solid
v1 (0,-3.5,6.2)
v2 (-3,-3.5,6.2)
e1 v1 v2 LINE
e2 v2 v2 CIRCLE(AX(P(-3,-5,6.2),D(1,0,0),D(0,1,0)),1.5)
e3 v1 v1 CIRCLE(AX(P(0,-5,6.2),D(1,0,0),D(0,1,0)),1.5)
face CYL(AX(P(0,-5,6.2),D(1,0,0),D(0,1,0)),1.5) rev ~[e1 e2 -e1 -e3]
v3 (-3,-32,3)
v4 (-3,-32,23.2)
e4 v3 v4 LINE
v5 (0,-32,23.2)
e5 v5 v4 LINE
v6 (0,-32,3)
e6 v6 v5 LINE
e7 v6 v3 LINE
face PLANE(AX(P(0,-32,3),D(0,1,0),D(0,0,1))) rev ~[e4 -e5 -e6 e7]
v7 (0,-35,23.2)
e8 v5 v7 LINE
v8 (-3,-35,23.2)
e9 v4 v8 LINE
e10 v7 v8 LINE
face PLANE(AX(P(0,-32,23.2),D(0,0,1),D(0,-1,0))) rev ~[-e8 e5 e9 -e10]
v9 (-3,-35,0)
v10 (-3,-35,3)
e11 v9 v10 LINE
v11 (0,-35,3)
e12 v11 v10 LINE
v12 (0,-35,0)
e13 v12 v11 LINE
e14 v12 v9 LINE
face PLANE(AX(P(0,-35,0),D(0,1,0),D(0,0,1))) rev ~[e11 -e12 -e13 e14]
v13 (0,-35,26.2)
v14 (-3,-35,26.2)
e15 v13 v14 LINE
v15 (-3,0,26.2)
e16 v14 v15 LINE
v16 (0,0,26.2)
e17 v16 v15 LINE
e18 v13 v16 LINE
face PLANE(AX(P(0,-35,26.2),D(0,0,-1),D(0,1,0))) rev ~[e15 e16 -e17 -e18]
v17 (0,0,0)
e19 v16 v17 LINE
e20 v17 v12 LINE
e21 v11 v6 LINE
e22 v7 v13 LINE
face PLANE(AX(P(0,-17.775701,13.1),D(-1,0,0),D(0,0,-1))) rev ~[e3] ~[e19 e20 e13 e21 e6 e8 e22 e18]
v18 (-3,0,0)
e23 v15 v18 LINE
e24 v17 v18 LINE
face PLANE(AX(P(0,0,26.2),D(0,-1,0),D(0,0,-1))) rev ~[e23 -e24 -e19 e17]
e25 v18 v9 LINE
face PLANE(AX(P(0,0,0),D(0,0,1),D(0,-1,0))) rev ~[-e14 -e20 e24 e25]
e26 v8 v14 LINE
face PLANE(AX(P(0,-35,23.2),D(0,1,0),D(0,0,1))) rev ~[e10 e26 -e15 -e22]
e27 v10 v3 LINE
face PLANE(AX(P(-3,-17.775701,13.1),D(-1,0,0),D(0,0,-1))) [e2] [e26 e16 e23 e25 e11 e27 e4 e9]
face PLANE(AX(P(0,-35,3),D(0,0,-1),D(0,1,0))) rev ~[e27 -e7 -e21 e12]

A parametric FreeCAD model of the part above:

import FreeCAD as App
import Part
import Sketcher
Q = App.Units.Quantity


def add_polygon(sketch, points):
    """Adds a closed chain of lines whose ends are joined by coincident constraints."""
    first, n = sketch.GeometryCount, len(points)
    for a, b in zip(points, points[1:] + points[:1]):
        sketch.addGeometry(Part.LineSegment(App.Vector(*a, 0), App.Vector(*b, 0)), False)
    for i in range(n):
        sketch.addConstraint(Sketcher.Constraint("Coincident", first + i, 2, first + (i + 1) % n, 1))

doc = App.newDocument("Part")
body = doc.addObject("PartDesign::Body", "Body")

# Sketch on YZ plane
sketch1 = doc.addObject("Sketcher::SketchObject", "Sketch")
body.addObject(sketch1)
sketch1.AttachmentSupport = (doc.YZ_Plane, [""])
sketch1.MapMode = "FlatFace"
add_polygon(sketch1, [(0, 0), (0, 26.2), (-35, 26.2), (-35, 23.2), (-32, 23.2), (-32, 3), (-35, 3), (-35, 0)])  # lines 0-7
sketch1.addGeometry(Part.Circle(App.Vector(-5, 6.2, 0), App.Vector(0, 0, 1), 1.5), False)  # 8
sketch1.addConstraint(Sketcher.Constraint("Vertical", 0))
sketch1.addConstraint(Sketcher.Constraint("Horizontal", 1))
sketch1.addConstraint(Sketcher.Constraint("Vertical", 2))
sketch1.addConstraint(Sketcher.Constraint("Horizontal", 3))
sketch1.addConstraint(Sketcher.Constraint("Vertical", 4))
sketch1.addConstraint(Sketcher.Constraint("Horizontal", 5))
sketch1.addConstraint(Sketcher.Constraint("Vertical", 6))
sketch1.addConstraint(Sketcher.Constraint("Horizontal", 7))
sketch1.addConstraint(Sketcher.Constraint("Coincident", 7, 2, -1, 1))
sketch1.addConstraint(Sketcher.Constraint("Vertical", 2, 2, 5, 2))
sketch1.addConstraint(Sketcher.Constraint("Equal", 5, 2))
sketch1.addConstraint(Sketcher.Constraint("Equal", 2, 6))
sketch1.addConstraint(Sketcher.Constraint("DistanceX", 1, 2, 1, 1, Q("35 mm")))
sketch1.addConstraint(Sketcher.Constraint("Diameter", 8, Q("3 mm")))
sketch1.addConstraint(Sketcher.Constraint("DistanceX", 3, 2, -1, 1, Q("32 mm")))
sketch1.addConstraint(Sketcher.Constraint("DistanceY", 0, 1, 0, 2, Q("26.2 mm")))
sketch1.addConstraint(Sketcher.Constraint("DistanceX", 8, 3, -1, 1, Q("5 mm")))
sketch1.addConstraint(Sketcher.Constraint("DistanceY", 8, 3, 0, 2, Q("20 mm")))
pad1 = doc.addObject("PartDesign::Pad", "Pad")
body.addObject(pad1)
pad1.Profile = sketch1
pad1.Length = 3
pad1.Reversed = True

doc.recompute()
